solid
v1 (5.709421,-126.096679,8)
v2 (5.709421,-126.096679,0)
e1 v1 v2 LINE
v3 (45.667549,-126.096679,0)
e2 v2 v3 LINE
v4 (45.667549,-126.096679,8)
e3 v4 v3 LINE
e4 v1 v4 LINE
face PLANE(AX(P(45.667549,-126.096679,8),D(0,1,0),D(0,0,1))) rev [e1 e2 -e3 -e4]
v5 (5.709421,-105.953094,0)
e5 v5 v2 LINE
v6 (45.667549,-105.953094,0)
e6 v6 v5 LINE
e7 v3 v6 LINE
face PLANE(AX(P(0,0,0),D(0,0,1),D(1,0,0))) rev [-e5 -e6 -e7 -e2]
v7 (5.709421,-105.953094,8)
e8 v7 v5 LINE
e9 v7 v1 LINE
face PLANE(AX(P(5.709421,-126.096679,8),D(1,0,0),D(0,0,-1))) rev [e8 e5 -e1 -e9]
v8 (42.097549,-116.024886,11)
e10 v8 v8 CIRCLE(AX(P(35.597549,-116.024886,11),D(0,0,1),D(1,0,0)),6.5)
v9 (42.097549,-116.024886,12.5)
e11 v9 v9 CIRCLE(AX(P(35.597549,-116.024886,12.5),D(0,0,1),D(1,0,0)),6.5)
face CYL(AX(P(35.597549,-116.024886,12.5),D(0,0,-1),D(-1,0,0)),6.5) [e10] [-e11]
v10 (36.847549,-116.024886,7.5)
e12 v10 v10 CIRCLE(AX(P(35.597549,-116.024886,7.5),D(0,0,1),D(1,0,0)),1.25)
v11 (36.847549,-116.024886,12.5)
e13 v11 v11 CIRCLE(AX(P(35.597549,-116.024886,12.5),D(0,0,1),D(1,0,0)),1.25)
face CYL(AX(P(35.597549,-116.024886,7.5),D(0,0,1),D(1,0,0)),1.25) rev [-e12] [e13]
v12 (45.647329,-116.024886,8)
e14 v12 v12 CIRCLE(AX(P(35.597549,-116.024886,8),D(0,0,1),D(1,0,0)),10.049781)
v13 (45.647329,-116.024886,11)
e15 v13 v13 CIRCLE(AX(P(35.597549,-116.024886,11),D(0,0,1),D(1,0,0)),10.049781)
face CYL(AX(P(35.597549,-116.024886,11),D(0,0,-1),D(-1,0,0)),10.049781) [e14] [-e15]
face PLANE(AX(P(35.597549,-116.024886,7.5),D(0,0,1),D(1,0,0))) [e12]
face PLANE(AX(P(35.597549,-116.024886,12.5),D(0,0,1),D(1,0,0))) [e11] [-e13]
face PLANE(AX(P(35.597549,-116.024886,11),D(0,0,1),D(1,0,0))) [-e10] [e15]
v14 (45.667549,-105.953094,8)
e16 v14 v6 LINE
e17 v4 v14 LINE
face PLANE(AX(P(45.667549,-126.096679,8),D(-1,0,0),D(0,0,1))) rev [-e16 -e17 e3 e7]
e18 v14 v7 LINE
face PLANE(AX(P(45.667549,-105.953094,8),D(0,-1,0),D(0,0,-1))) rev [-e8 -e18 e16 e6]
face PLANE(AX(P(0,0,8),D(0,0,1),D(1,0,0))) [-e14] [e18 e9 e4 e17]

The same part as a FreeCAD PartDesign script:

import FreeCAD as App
import Part
import Sketcher

doc = App.newDocument("Part")
body = doc.addObject("PartDesign::Body", "Body")

sketch1 = body.newObject("Sketcher::SketchObject", "Sketch")
sketch1.AttachmentSupport = (doc.getObject("XY_Plane"), [""])
sketch1.MapMode = "FlatFace"
sketch1.addGeometry([
    Part.LineSegment(App.Vector(6, -106, 0), App.Vector(6, -126, 0)),
    Part.LineSegment(App.Vector(6, -126, 0), App.Vector(46, -126, 0)),
    Part.LineSegment(App.Vector(46, -126, 0), App.Vector(46, -106, 0)),
    Part.LineSegment(App.Vector(46, -106, 0), App.Vector(6, -106, 0)),
], False)
sketch1.addConstraint([
    Sketcher.Constraint("Coincident", 0, 2, 1, 1),
    Sketcher.Constraint("Coincident", 1, 2, 2, 1),
    Sketcher.Constraint("Coincident", 2, 2, 3, 1),
    Sketcher.Constraint("Coincident", 3, 2, 0, 1),
    Sketcher.Constraint("Vertical", 0),
    Sketcher.Constraint("Horizontal", 1),
    Sketcher.Constraint("Vertical", 2),
    Sketcher.Constraint("Horizontal", 3),
    Sketcher.Constraint("DistanceX", 1, 1, 1, 2, 39.958128),
    Sketcher.Constraint("DistanceY", 0, 2, 0, 1, 20.143585),
    Sketcher.Constraint("DistanceX", -1, 1, 0, 2, 5.709421),
    Sketcher.Constraint("DistanceY", 0, 2, -1, 1, 126.096679),
])
pad1 = body.newObject("PartDesign::Pad", "Pad")
pad1.Profile = sketch1
pad1.Length = 8

sketch2 = body.newObject("Sketcher::SketchObject", "Sketch001")
sketch2.AttachmentSupport = (doc.getObject("XY_Plane"), [""])
sketch2.MapMode = "FlatFace"
sketch2.AttachmentOffset = App.Placement(App.Vector(0, 0, 8), App.Rotation())
sketch2.addGeometry(Part.Circle(App.Vector(36, -116, 0), App.Vector(0, 0, 1), 10), False)
sketch2.addConstraint([
    Sketcher.Constraint("Diameter", 0, 20.099561),
    Sketcher.Constraint("DistanceX", -1, 1, 0, 3, 35.597549),
    Sketcher.Constraint("DistanceY", 0, 3, -1, 1, 116.024886),
])
pad2 = body.newObject("PartDesign::Pad", "Pad001")
pad2.Profile = sketch2
pad2.Length = 3

sketch3 = body.newObject("Sketcher::SketchObject", "Sketch002")
sketch3.AttachmentSupport = (doc.getObject("XY_Plane"), [""])
sketch3.MapMode = "FlatFace"
sketch3.AttachmentOffset = App.Placement(App.Vector(0, 0, 11), App.Rotation())
sketch3.addGeometry(Part.Circle(App.Vector(36, -116, 0), App.Vector(0, 0, 1), 6), False)
sketch3.addConstraint([
    Sketcher.Constraint("Diameter", 0, 13.0),
    Sketcher.Constraint("DistanceX", -1, 1, 0, 3, 35.597549),
    Sketcher.Constraint("DistanceY", 0, 3, -1, 1, 116.024886),
])
pad3 = body.newObject("PartDesign::Pad", "Pad002")
pad3.Profile = sketch3
pad3.Length = 1.5

sketch4 = body.newObject("Sketcher::SketchObject", "Sketch003")
sketch4.AttachmentSupport = (doc.getObject("XY_Plane"), [""])
sketch4.MapMode = "FlatFace"
sketch4.AttachmentOffset = App.Placement(App.Vector(0, 0, 12.5), App.Rotation())
sketch4.addGeometry(Part.Circle(App.Vector(35.6, -116, 0), App.Vector(0, 0, 1), 1.2), False)
sketch4.addConstraint([
    Sketcher.Constraint("Diameter", 0, 2.5),
    Sketcher.Constraint("DistanceX", -1, 1, 0, 3, 35.597549),
    Sketcher.Constraint("DistanceY", 0, 3, -1, 1, 116.024886),
])
pocket1 = body.newObject("PartDesign::Pocket", "Pocket")
pocket1.Profile = sketch4
pocket1.Length = 5

doc.recompute()
